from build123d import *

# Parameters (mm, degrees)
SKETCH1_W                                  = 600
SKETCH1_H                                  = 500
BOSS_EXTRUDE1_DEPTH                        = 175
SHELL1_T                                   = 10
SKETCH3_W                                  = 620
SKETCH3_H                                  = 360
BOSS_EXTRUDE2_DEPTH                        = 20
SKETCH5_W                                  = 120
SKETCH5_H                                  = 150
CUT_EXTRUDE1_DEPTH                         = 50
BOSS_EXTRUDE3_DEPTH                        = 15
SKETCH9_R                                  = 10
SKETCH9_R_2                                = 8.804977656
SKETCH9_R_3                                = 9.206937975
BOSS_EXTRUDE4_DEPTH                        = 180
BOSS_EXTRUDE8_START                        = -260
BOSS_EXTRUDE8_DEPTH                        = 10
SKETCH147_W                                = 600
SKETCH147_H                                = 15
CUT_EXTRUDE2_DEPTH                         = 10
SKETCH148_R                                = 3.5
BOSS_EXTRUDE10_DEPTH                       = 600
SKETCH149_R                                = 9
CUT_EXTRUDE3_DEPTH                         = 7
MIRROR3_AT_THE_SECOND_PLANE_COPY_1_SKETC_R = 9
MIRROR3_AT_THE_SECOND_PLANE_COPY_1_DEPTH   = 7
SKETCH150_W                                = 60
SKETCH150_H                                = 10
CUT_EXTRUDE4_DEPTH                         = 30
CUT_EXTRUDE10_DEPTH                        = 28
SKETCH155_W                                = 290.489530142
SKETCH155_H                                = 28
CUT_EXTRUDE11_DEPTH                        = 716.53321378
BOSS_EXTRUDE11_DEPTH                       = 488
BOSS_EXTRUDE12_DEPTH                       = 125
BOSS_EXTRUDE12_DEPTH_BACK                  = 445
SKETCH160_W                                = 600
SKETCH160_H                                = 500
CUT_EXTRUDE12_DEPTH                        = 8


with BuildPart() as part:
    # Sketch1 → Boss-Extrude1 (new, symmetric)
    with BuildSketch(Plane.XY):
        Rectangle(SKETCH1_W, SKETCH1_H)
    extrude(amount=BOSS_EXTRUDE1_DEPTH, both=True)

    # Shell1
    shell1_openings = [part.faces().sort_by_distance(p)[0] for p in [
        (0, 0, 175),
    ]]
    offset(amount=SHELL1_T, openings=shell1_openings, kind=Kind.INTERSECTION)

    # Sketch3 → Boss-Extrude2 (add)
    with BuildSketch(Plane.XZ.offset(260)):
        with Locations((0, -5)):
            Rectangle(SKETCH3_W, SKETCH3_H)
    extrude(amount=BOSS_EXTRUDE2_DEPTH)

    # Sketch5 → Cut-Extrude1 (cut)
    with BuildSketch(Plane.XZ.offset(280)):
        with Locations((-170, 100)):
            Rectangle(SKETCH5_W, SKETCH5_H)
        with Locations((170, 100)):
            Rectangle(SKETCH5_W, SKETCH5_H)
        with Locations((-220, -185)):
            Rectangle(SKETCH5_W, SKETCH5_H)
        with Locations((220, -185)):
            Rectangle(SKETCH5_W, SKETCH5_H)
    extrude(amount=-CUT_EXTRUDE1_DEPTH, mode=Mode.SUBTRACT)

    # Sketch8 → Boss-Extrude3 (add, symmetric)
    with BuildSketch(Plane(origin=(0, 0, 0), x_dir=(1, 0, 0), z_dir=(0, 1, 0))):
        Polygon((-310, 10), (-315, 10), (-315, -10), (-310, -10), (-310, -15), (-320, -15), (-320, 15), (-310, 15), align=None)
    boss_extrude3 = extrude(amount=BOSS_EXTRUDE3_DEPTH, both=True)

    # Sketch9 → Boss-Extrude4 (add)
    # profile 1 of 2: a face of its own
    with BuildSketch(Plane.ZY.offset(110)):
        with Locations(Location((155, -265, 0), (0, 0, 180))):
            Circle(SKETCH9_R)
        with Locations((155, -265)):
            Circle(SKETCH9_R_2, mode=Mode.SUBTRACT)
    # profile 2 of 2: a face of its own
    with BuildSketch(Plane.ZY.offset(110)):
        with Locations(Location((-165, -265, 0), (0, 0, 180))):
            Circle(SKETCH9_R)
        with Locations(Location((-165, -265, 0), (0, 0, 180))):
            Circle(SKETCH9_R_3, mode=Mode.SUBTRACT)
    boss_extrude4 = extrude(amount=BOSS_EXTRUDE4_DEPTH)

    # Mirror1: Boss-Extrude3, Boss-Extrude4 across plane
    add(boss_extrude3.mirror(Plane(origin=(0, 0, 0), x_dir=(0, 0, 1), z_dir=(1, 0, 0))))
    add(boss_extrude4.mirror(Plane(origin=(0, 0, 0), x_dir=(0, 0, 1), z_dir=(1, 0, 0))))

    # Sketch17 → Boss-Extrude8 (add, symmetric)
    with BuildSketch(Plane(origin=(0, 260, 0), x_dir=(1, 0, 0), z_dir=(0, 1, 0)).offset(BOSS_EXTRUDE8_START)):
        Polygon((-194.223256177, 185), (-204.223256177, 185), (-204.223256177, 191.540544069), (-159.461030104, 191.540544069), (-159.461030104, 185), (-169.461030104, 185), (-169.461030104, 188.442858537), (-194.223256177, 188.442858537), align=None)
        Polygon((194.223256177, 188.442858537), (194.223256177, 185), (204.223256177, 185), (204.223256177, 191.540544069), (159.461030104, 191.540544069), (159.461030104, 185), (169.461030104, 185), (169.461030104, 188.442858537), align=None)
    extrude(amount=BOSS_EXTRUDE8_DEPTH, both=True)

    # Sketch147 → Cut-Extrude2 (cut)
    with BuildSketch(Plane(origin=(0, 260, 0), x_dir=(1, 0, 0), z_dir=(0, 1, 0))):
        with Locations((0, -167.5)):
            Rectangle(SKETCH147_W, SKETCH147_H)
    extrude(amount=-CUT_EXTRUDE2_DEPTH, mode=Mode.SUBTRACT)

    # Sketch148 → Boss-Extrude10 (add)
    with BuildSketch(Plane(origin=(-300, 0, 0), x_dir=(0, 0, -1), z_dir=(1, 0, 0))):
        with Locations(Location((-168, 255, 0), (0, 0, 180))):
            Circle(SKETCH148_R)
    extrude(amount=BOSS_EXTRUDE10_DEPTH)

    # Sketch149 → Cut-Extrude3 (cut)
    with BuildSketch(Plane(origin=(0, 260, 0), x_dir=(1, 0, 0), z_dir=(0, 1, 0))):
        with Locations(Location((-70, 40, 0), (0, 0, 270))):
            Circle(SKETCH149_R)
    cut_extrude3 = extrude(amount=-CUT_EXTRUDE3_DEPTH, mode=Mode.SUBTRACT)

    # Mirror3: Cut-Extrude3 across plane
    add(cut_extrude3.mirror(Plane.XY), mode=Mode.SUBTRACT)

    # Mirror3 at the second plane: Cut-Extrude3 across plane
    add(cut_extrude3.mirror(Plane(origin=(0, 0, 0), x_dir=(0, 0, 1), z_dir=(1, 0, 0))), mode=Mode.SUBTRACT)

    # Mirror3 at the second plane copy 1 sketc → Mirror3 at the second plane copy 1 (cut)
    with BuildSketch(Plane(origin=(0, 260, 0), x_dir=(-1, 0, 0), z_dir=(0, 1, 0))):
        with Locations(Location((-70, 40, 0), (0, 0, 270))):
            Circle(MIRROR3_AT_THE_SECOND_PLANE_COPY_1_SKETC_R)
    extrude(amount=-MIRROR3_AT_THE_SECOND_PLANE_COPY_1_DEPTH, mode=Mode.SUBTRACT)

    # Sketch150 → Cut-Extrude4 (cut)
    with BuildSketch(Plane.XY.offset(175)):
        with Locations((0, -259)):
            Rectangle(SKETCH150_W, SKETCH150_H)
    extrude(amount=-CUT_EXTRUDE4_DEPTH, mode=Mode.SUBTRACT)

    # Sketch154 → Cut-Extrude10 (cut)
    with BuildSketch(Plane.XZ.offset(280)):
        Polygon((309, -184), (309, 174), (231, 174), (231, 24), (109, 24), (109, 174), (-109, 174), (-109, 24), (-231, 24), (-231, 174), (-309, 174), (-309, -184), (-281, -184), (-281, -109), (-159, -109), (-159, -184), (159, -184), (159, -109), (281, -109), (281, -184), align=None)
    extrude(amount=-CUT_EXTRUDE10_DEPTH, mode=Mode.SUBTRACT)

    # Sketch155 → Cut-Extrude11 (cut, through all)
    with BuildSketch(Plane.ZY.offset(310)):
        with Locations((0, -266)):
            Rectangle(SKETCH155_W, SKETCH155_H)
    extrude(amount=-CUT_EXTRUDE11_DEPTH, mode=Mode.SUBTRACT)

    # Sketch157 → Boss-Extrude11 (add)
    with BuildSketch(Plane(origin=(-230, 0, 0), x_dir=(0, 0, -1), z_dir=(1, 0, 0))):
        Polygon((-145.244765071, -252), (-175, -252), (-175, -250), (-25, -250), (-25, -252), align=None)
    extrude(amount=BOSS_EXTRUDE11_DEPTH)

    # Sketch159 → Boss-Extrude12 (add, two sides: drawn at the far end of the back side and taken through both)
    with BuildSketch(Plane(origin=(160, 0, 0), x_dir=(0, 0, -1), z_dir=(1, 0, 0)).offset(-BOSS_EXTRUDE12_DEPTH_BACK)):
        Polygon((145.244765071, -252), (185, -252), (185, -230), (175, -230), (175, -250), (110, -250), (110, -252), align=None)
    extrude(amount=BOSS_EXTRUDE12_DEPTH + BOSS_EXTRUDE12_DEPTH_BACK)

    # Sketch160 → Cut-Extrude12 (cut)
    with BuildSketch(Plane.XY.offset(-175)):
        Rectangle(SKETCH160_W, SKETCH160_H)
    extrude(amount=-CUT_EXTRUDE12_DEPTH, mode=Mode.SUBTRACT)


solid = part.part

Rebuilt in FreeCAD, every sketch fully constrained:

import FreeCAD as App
import Part
import Sketcher


def faces_at(feature, points):
    """Names of the faces that lie closest to the given points."""
    faces = feature.Shape.Faces
    near = lambda p: min(range(len(faces)), key=lambda i: faces[i].distToShape(Part.Vertex(*p))[0])
    return sorted({f"Face{near(p) + 1}" for p in points})

doc = App.newDocument("Part")
params = doc.addObject("Spreadsheet::Sheet", "Params")
for row, (alias, value) in enumerate([
    ("sketch1_width", "600 mm"),
    ("sketch1_height", "500 mm"),
    ("pad1_length", "350 mm"),
    ("thickness_wall", "10 mm"),
    ("sketch2_width", "620 mm"),
    ("sketch2_height", "360 mm"),
    ("pad2_length", "20 mm"),
    ("sketch3_width", "120 mm"),
    ("sketch3_height", "150 mm"),
    ("pocket1_length", "50 mm"),
    ("sketch4_width", "5 mm"),
    ("sketch4_width2", "10 mm"),
    ("sketch4_height", "30 mm"),
    ("pad3_length", "30 mm"),
    ("sketch5_diameter", "20 mm"),
    ("pad4_length", "180 mm"),
    ("sketch6_width", "10 mm"),
    ("pad5_length", "20 mm"),
    ("sketch7_width", "600 mm"),
    ("sketch7_height", "15 mm"),
    ("pocket2_length", "10 mm"),
    ("sketch8_diameter", "7 mm"),
    ("pad6_length", "600 mm"),
    ("sketch9_diameter", "18 mm"),
    ("pocket3_length", "7 mm"),
    ("sketch10_diameter", "18 mm"),
    ("pocket4_length", "7 mm"),
    ("sketch11_width", "60 mm"),
    ("sketch11_height", "10 mm"),
    ("pocket5_length", "30 mm"),
    ("sketch12_width", "78 mm"),
    ("sketch12_width2", "122 mm"),
    ("sketch12_width3", "218 mm"),
    ("sketch12_width4", "28 mm"),
    ("sketch12_height", "358 mm"),
    ("pocket6_length", "28 mm"),
    ("sketch13_width", "28 mm"),
    ("sketch14_width", "2 mm"),
    ("sketch14_height", "150 mm"),
    ("pad7_length", "488 mm"),
    ("sketch15_width", "22 mm"),
    ("sketch15_width2", "20 mm"),
    ("sketch15_height", "10 mm"),
    ("sketch15_height2", "65 mm"),
    ("pad8_length", "125 mm"),
    ("pad8_length2", "445 mm"),
    ("sketch16_width", "600 mm"),
    ("sketch16_height", "500 mm"),
    ("pocket8_length", "8 mm"),
], start=1):
    params.set(f"A{row}", alias)
    params.set(f"B{row}", "=" + value)
    params.setAlias(f"B{row}", alias)

body = doc.addObject("PartDesign::Body", "Body")

# Sketch on XY plane
sketch1 = body.newObject("Sketcher::SketchObject", "Sketch")
sketch1.AttachmentSupport = (doc.getObject("XY_Plane"), [""])
sketch1.MapMode = "FlatFace"
sketch1.addGeometry([
    Part.LineSegment(App.Vector(-300, 250, 0), App.Vector(-300, -250, 0)),
    Part.LineSegment(App.Vector(-300, -250, 0), App.Vector(300, -250, 0)),
    Part.LineSegment(App.Vector(300, -250, 0), App.Vector(300, 250, 0)),
    Part.LineSegment(App.Vector(300, 250, 0), App.Vector(-300, 250, 0)),
], False)
sketch1.addConstraint([
    Sketcher.Constraint("Coincident", 0, 2, 1, 1),
    Sketcher.Constraint("Coincident", 1, 2, 2, 1),
    Sketcher.Constraint("Coincident", 2, 2, 3, 1),
    Sketcher.Constraint("Coincident", 3, 2, 0, 1),
    Sketcher.Constraint("Vertical", 0),
    Sketcher.Constraint("Horizontal", 1),
    Sketcher.Constraint("Vertical", 2),
    Sketcher.Constraint("Horizontal", 3),
    Sketcher.Constraint("Symmetric", 0, 2, 2, 2, -1, 1),
    Sketcher.Constraint("DistanceX", 1, 1, 1, 2, 600.0),
    Sketcher.Constraint("DistanceY", 0, 2, 0, 1, 500.0),
])
sketch1.setExpression("Constraints[9]", "Params.sketch1_width")
sketch1.setExpression("Constraints[10]", "Params.sketch1_height")
pad1 = body.newObject("PartDesign::Pad", "Pad")
pad1.Profile = sketch1
pad1.setExpression("Length", "Params.pad1_length")
pad1.Midplane = True
doc.recompute()

thickness = body.newObject("PartDesign::Thickness", "Thickness")
thickness.Base = (pad1, faces_at(pad1, [(0, 0, 175)]))
thickness.setExpression("Value", "Params.thickness_wall")
thickness.Reversed = False
thickness.Join = "Intersection"

# Sketch on XZ plane
sketch2 = body.newObject("Sketcher::SketchObject", "Sketch001")
sketch2.AttachmentSupport = (doc.getObject("XZ_Plane"), [""])
sketch2.MapMode = "FlatFace"
sketch2.AttachmentOffset = App.Placement(App.Vector(0, 0, 260), App.Rotation())
sketch2.addGeometry([
    Part.LineSegment(App.Vector(-310, 175, 0), App.Vector(-310, -185, 0)),
    Part.LineSegment(App.Vector(-310, -185, 0), App.Vector(310, -185, 0)),
    Part.LineSegment(App.Vector(310, -185, 0), App.Vector(310, 175, 0)),
    Part.LineSegment(App.Vector(310, 175, 0), App.Vector(-310, 175, 0)),
], False)
sketch2.addConstraint([
    Sketcher.Constraint("Coincident", 0, 2, 1, 1),
    Sketcher.Constraint("Coincident", 1, 2, 2, 1),
    Sketcher.Constraint("Coincident", 2, 2, 3, 1),
    Sketcher.Constraint("Coincident", 3, 2, 0, 1),
    Sketcher.Constraint("Vertical", 0),
    Sketcher.Constraint("Horizontal", 1),
    Sketcher.Constraint("Vertical", 2),
    Sketcher.Constraint("Horizontal", 3),
    Sketcher.Constraint("DistanceX", 1, 1, 1, 2, 620.0),
    Sketcher.Constraint("DistanceY", 0, 2, 0, 1, 360.0),
    Sketcher.Constraint("DistanceX", 0, 2, -1, 1, 310.0),
    Sketcher.Constraint("DistanceY", 0, 2, -1, 1, 185.0),
])
sketch2.setExpression("Constraints[8]", "Params.sketch2_width")
sketch2.setExpression("Constraints[9]", "Params.sketch2_height")
pad2 = body.newObject("PartDesign::Pad", "Pad001")
pad2.Profile = sketch2
pad2.setExpression("Length", "Params.pad2_length")

# Sketch on XZ plane
sketch3 = body.newObject("Sketcher::SketchObject", "Sketch002")
sketch3.AttachmentSupport = (doc.getObject("XZ_Plane"), [""])
sketch3.MapMode = "FlatFace"
sketch3.AttachmentOffset = App.Placement(App.Vector(0, 0, 280), App.Rotation())
sketch3.addGeometry([
    Part.LineSegment(App.Vector(-230, 175, 0), App.Vector(-230, 25, 0)),  # 0
    Part.LineSegment(App.Vector(-230, 25, 0), App.Vector(-110, 25, 0)),  # 1
    Part.LineSegment(App.Vector(-110, 25, 0), App.Vector(-110, 175, 0)),  # 2
    Part.LineSegment(App.Vector(-110, 175, 0), App.Vector(-230, 175, 0)),  # 3
    Part.LineSegment(App.Vector(110, 175, 0), App.Vector(110, 25, 0)),  # 4
    Part.LineSegment(App.Vector(110, 25, 0), App.Vector(230, 25, 0)),  # 5
    Part.LineSegment(App.Vector(230, 25, 0), App.Vector(230, 175, 0)),  # 6
    Part.LineSegment(App.Vector(230, 175, 0), App.Vector(110, 175, 0)),  # 7
    Part.LineSegment(App.Vector(-280, -110, 0), App.Vector(-280, -260, 0)),  # 8
    Part.LineSegment(App.Vector(-280, -260, 0), App.Vector(-160, -260, 0)),  # 9
    Part.LineSegment(App.Vector(-160, -260, 0), App.Vector(-160, -110, 0)),  # 10
    Part.LineSegment(App.Vector(-160, -110, 0), App.Vector(-280, -110, 0)),  # 11
    Part.LineSegment(App.Vector(160, -110, 0), App.Vector(160, -260, 0)),  # 12
    Part.LineSegment(App.Vector(160, -260, 0), App.Vector(280, -260, 0)),  # 13
    Part.LineSegment(App.Vector(280, -260, 0), App.Vector(280, -110, 0)),  # 14
    Part.LineSegment(App.Vector(280, -110, 0), App.Vector(160, -110, 0)),  # 15
], False)
sketch3.addConstraint([
    Sketcher.Constraint("Coincident", 0, 2, 1, 1),
    Sketcher.Constraint("Coincident", 1, 2, 2, 1),
    Sketcher.Constraint("Coincident", 2, 2, 3, 1),
    Sketcher.Constraint("Coincident", 3, 2, 0, 1),
    Sketcher.Constraint("Coincident", 4, 2, 5, 1),
    Sketcher.Constraint("Coincident", 5, 2, 6, 1),
    Sketcher.Constraint("Coincident", 6, 2, 7, 1),
    Sketcher.Constraint("Coincident", 7, 2, 4, 1),
    Sketcher.Constraint("Coincident", 8, 2, 9, 1),
    Sketcher.Constraint("Coincident", 9, 2, 10, 1),
    Sketcher.Constraint("Coincident", 10, 2, 11, 1),
    Sketcher.Constraint("Coincident", 11, 2, 8, 1),
    Sketcher.Constraint("Coincident", 12, 2, 13, 1),
    Sketcher.Constraint("Coincident", 13, 2, 14, 1),
    Sketcher.Constraint("Coincident", 14, 2, 15, 1),
    Sketcher.Constraint("Coincident", 15, 2, 12, 1),
    Sketcher.Constraint("Vertical", 0),
    Sketcher.Constraint("Horizontal", 1),
    Sketcher.Constraint("Vertical", 2),
    Sketcher.Constraint("Horizontal", 3),
    Sketcher.Constraint("Vertical", 4),
    Sketcher.Constraint("Horizontal", 5),
    Sketcher.Constraint("Vertical", 6),
    Sketcher.Constraint("Horizontal", 7),
    Sketcher.Constraint("Vertical", 8),
    Sketcher.Constraint("Horizontal", 9),
    Sketcher.Constraint("Vertical", 10),
    Sketcher.Constraint("Horizontal", 11),
    Sketcher.Constraint("Vertical", 12),
    Sketcher.Constraint("Horizontal", 13),
    Sketcher.Constraint("Vertical", 14),
    Sketcher.Constraint("Horizontal", 15),
    Sketcher.Constraint("Symmetric", 1, 2, 4, 2, -2),
    Sketcher.Constraint("Symmetric", 3, 2, 6, 2, -2),
    Sketcher.Constraint("Symmetric", 9, 2, 12, 2, -2),
    Sketcher.Constraint("Symmetric", 11, 2, 14, 2, -2),
    Sketcher.Constraint("Equal", 7, 9),
    Sketcher.Constraint("Equal", 6, 8),
    Sketcher.Constraint("DistanceX", 1, 1, 1, 2, 120.0),
    Sketcher.Constraint("DistanceY", 0, 2, 0, 1, 150.0),
    Sketcher.Constraint("DistanceX", 0, 2, -1, 1, 230.0),
    Sketcher.Constraint("DistanceY", -1, 1, 0, 2, 25.0),
    Sketcher.Constraint("DistanceX", 8, 2, -1, 1, 280.0),
    Sketcher.Constraint("DistanceY", 8, 2, -1, 1, 260.0),
])
sketch3.setExpression("Constraints[38]", "Params.sketch3_width")
sketch3.setExpression("Constraints[39]", "Params.sketch3_height")
pocket1 = body.newObject("PartDesign::Pocket", "Pocket")
pocket1.Profile = sketch3
pocket1.setExpression("Length", "Params.pocket1_length")

# Sketch on XZ plane
sketch4 = body.newObject("Sketcher::SketchObject", "Sketch003")
sketch4.AttachmentSupport = (doc.getObject("XZ_Plane"), [""])
sketch4.MapMode = "FlatFace"
sketch4.addGeometry([
    Part.LineSegment(App.Vector(-315, -10, 0), App.Vector(-310, -10, 0)),  # 0
    Part.LineSegment(App.Vector(-310, -10, 0), App.Vector(-310, -15, 0)),  # 1
    Part.LineSegment(App.Vector(-310, -15, 0), App.Vector(-320, -15, 0)),  # 2
    Part.LineSegment(App.Vector(-320, -15, 0), App.Vector(-320, 15, 0)),  # 3
    Part.LineSegment(App.Vector(-320, 15, 0), App.Vector(-310, 15, 0)),  # 4
    Part.LineSegment(App.Vector(-310, 15, 0), App.Vector(-310, 10, 0)),  # 5
    Part.LineSegment(App.Vector(-310, 10, 0), App.Vector(-315, 10, 0)),  # 6
    Part.LineSegment(App.Vector(-315, 10, 0), App.Vector(-315, -10, 0)),  # 7
], False)
sketch4.addConstraint([
    Sketcher.Constraint("Coincident", 0, 2, 1, 1),
    Sketcher.Constraint("Coincident", 1, 2, 2, 1),
    Sketcher.Constraint("Coincident", 2, 2, 3, 1),
    Sketcher.Constraint("Coincident", 3, 2, 4, 1),
    Sketcher.Constraint("Coincident", 4, 2, 5, 1),
    Sketcher.Constraint("Coincident", 5, 2, 6, 1),
    Sketcher.Constraint("Coincident", 6, 2, 7, 1),
    Sketcher.Constraint("Coincident", 7, 2, 0, 1),
    Sketcher.Constraint("Horizontal", 0),
    Sketcher.Constraint("Vertical", 1),
    Sketcher.Constraint("Horizontal", 2),
    Sketcher.Constraint("Vertical", 3),
    Sketcher.Constraint("Horizontal", 4),
    Sketcher.Constraint("Vertical", 5),
    Sketcher.Constraint("Horizontal", 6),
    Sketcher.Constraint("Vertical", 7),
    Sketcher.Constraint("Symmetric", 1, 2, 4, 2, -1),
    Sketcher.Constraint("Equal", 6, 1),
    Sketcher.Constraint("Equal", 1, 5),
    Sketcher.Constraint("DistanceX", 0, 1, 0, 2, 5.0),
    Sketcher.Constraint("DistanceX", 2, 2, 2, 1, 10.0),
    Sketcher.Constraint("DistanceY", 3, 1, 3, 2, 30.0),
    Sketcher.Constraint("DistanceX", 0, 2, -1, 1, 310.0),
])
sketch4.setExpression("Constraints[19]", "Params.sketch4_width")
sketch4.setExpression("Constraints[20]", "Params.sketch4_width2")
sketch4.setExpression("Constraints[21]", "Params.sketch4_height")
pad3 = body.newObject("PartDesign::Pad", "Pad002")
pad3.Profile = sketch4
pad3.setExpression("Length", "Params.pad3_length")
pad3.Midplane = True

# Sketch on YZ plane
sketch5 = body.newObject("Sketcher::SketchObject", "Sketch004")
sketch5.AttachmentSupport = (doc.getObject("YZ_Plane"), [""])
sketch5.MapMode = "FlatFace"
sketch5.AttachmentOffset = App.Placement(App.Vector(0, 0, -110), App.Rotation())
sketch5.addGeometry([
    Part.Circle(App.Vector(-265, 155, 0), App.Vector(0, 0, 1), 10),
    Part.Circle(App.Vector(-265, 155, 0), App.Vector(0, 0, 1), 9),
    Part.Circle(App.Vector(-265, -165, 0), App.Vector(0, 0, 1), 10),
    Part.Circle(App.Vector(-265, -165, 0), App.Vector(0, 0, 1), 9),
], False)
sketch5.addConstraint([
    Sketcher.Constraint("Coincident", 1, 3, 0, 3),
    Sketcher.Constraint("Coincident", 3, 3, 2, 3),
    Sketcher.Constraint("Equal", 0, 2),
    Sketcher.Constraint("Vertical", 1, 3, 2, 3),
    Sketcher.Constraint("Diameter", 0, 20.0),
    Sketcher.Constraint("DistanceX", 0, 3, -1, 1, 265.0),
    Sketcher.Constraint("DistanceY", -1, 1, 0, 3, 155.0),
    Sketcher.Constraint("DistanceY", 2, 3, -1, 1, 165.0),
    Sketcher.Constraint("Diameter", 1, 17.609955),
    Sketcher.Constraint("Diameter", 3, 18.413876),
])
sketch5.setExpression("Constraints[4]", "Params.sketch5_diameter")
pad4 = body.newObject("PartDesign::Pad", "Pad003")
pad4.Profile = sketch5
pad4.setExpression("Length", "Params.pad4_length")
pad4.Reversed = True
doc.recompute()

mirrored = body.newObject("PartDesign::Mirrored", "Mirrored")
mirrored.Originals = [pad3, pad4]
mirrored.MirrorPlane = (doc.getObject("YZ_Plane"), [""])
body.Tip = mirrored

# Sketch on XZ plane
sketch6 = body.newObject("Sketcher::SketchObject", "Sketch005")
sketch6.AttachmentSupport = (doc.getObject("XZ_Plane"), [""])
sketch6.MapMode = "FlatFace"
sketch6.addGeometry([
    Part.LineSegment(App.Vector(-204.2, -185, 0), App.Vector(-194.2, -185, 0)),  # 0
    Part.LineSegment(App.Vector(-194.2, -185, 0), App.Vector(-194.2, -188.4, 0)),  # 1
    Part.LineSegment(App.Vector(-194.2, -188.4, 0), App.Vector(-169.5, -188.4, 0)),  # 2
    Part.LineSegment(App.Vector(-169.5, -188.4, 0), App.Vector(-169.5, -185, 0)),  # 3
    Part.LineSegment(App.Vector(-169.5, -185, 0), App.Vector(-159.5, -185, 0)),  # 4
    Part.LineSegment(App.Vector(-159.5, -185, 0), App.Vector(-159.5, -191.5, 0)),  # 5
    Part.LineSegment(App.Vector(-159.5, -191.5, 0), App.Vector(-204.2, -191.5, 0)),  # 6
    Part.LineSegment(App.Vector(-204.2, -191.5, 0), App.Vector(-204.2, -185, 0)),  # 7
    Part.LineSegment(App.Vector(194.2, -188.4, 0), App.Vector(194.2, -185, 0)),  # 8
    Part.LineSegment(App.Vector(194.2, -185, 0), App.Vector(204.2, -185, 0)),  # 9
    Part.LineSegment(App.Vector(204.2, -185, 0), App.Vector(204.2, -191.5, 0)),  # 10
    Part.LineSegment(App.Vector(204.2, -191.5, 0), App.Vector(159.5, -191.5, 0)),  # 11
    Part.LineSegment(App.Vector(159.5, -191.5, 0), App.Vector(159.5, -185, 0)),  # 12
    Part.LineSegment(App.Vector(159.5, -185, 0), App.Vector(169.5, -185, 0)),  # 13
    Part.LineSegment(App.Vector(169.5, -185, 0), App.Vector(169.5, -188.4, 0)),  # 14
    Part.LineSegment(App.Vector(169.5, -188.4, 0), App.Vector(194.2, -188.4, 0)),  # 15
], False)
sketch6.addConstraint([
    Sketcher.Constraint("Coincident", 0, 2, 1, 1),
    Sketcher.Constraint("Coincident", 1, 2, 2, 1),
    Sketcher.Constraint("Coincident", 2, 2, 3, 1),
    Sketcher.Constraint("Coincident", 3, 2, 4, 1),
    Sketcher.Constraint("Coincident", 4, 2, 5, 1),
    Sketcher.Constraint("Coincident", 5, 2, 6, 1),
    Sketcher.Constraint("Coincident", 6, 2, 7, 1),
    Sketcher.Constraint("Coincident", 7, 2, 0, 1),
    Sketcher.Constraint("Coincident", 8, 2, 9, 1),
    Sketcher.Constraint("Coincident", 9, 2, 10, 1),
    Sketcher.Constraint("Coincident", 10, 2, 11, 1),
    Sketcher.Constraint("Coincident", 11, 2, 12, 1),
    Sketcher.Constraint("Coincident", 12, 2, 13, 1),
    Sketcher.Constraint("Coincident", 13, 2, 14, 1),
    Sketcher.Constraint("Coincident", 14, 2, 15, 1),
    Sketcher.Constraint("Coincident", 15, 2, 8, 1),
    Sketcher.Constraint("Horizontal", 0),
    Sketcher.Constraint("Vertical", 1),
    Sketcher.Constraint("Horizontal", 2),
    Sketcher.Constraint("Vertical", 3),
    Sketcher.Constraint("Horizontal", 4),
    Sketcher.Constraint("Vertical", 5),
    Sketcher.Constraint("Horizontal", 6),
    Sketcher.Constraint("Vertical", 7),
    Sketcher.Constraint("Vertical", 8),
    Sketcher.Constraint("Horizontal", 9),
    Sketcher.Constraint("Vertical", 10),
    Sketcher.Constraint("Horizontal", 11),
    Sketcher.Constraint("Vertical", 12),
    Sketcher.Constraint("Horizontal", 13),
    Sketcher.Constraint("Vertical", 14),
    Sketcher.Constraint("Horizontal", 15),
    Sketcher.Constraint("Symmetric", 0, 2, 8, 2, -2),
    Sketcher.Constraint("Symmetric", 6, 2, 10, 2, -2),
    Sketcher.Constraint("Symmetric", 4, 2, 12, 2, -2),
    Sketcher.Constraint("Symmetric", 2, 2, 14, 2, -2),
    Sketcher.Constraint("Horizontal", 0, 2, 3, 2),
    Sketcher.Constraint("Equal", 0, 4),
    Sketcher.Constraint("DistanceX", 0, 1, 0, 2, 10.0),
    Sketcher.Constraint("DistanceY", 0, 2, -1, 1, 185.0),
    Sketcher.Constraint("DistanceY", 1, 2, 1, 1, 3.442859),
    Sketcher.Constraint("DistanceX", 2, 1, 2, 2, 24.762226),
    Sketcher.Constraint("DistanceY", 5, 2, 5, 1, 6.540544),
    Sketcher.Constraint("DistanceX", 2, 2, -1, 1, 169.46103),
])
sketch6.setExpression("Constraints[38]", "Params.sketch6_width")
pad5 = body.newObject("PartDesign::Pad", "Pad004")
pad5.Profile = sketch6
pad5.setExpression("Length", "Params.pad5_length")
pad5.Midplane = True

# Sketch on XZ plane
sketch7 = body.newObject("Sketcher::SketchObject", "Sketch006")
sketch7.AttachmentSupport = (doc.getObject("XZ_Plane"), [""])
sketch7.MapMode = "FlatFace"
sketch7.AttachmentOffset = App.Placement(App.Vector(0, 0, -260), App.Rotation())
sketch7.addGeometry([
    Part.LineSegment(App.Vector(-300, 160, 0), App.Vector(-300, 175, 0)),
    Part.LineSegment(App.Vector(-300, 175, 0), App.Vector(300, 175, 0)),
    Part.LineSegment(App.Vector(300, 175, 0), App.Vector(300, 160, 0)),
    Part.LineSegment(App.Vector(300, 160, 0), App.Vector(-300, 160, 0)),
], False)
sketch7.addConstraint([
    Sketcher.Constraint("Coincident", 0, 2, 1, 1),
    Sketcher.Constraint("Coincident", 1, 2, 2, 1),
    Sketcher.Constraint("Coincident", 2, 2, 3, 1),
    Sketcher.Constraint("Coincident", 3, 2, 0, 1),
    Sketcher.Constraint("Vertical", 0),
    Sketcher.Constraint("Horizontal", 1),
    Sketcher.Constraint("Vertical", 2),
    Sketcher.Constraint("Horizontal", 3),
    Sketcher.Constraint("DistanceX", 1, 1, 1, 2, 600.0),
    Sketcher.Constraint("DistanceY", 0, 1, 0, 2, 15.0),
    Sketcher.Constraint("DistanceX", 0, 2, -1, 1, 300.0),
    Sketcher.Constraint("DistanceY", -1, 1, 0, 2, 175.0),
])
sketch7.setExpression("Constraints[8]", "Params.sketch7_width")
sketch7.setExpression("Constraints[9]", "Params.sketch7_height")
pocket2 = body.newObject("PartDesign::Pocket", "Pocket001")
pocket2.Profile = sketch7
pocket2.setExpression("Length", "Params.pocket2_length")
pocket2.Reversed = True

# Sketch on YZ plane
sketch8 = body.newObject("Sketcher::SketchObject", "Sketch007")
sketch8.AttachmentSupport = (doc.getObject("YZ_Plane"), [""])
sketch8.MapMode = "FlatFace"
sketch8.AttachmentOffset = App.Placement(App.Vector(0, 0, -300), App.Rotation())
sketch8.addGeometry(Part.Circle(App.Vector(255, 168, 0), App.Vector(0, 0, 1), 3.5), False)
sketch8.addConstraint([
    Sketcher.Constraint("Diameter", 0, 7.0),
    Sketcher.Constraint("DistanceX", -1, 1, 0, 3, 255.0),
    Sketcher.Constraint("DistanceY", -1, 1, 0, 3, 168.0),
])
sketch8.setExpression("Constraints[0]", "Params.sketch8_diameter")
pad6 = body.newObject("PartDesign::Pad", "Pad005")
pad6.Profile = sketch8
pad6.setExpression("Length", "Params.pad6_length")

# Sketch on XZ plane
sketch9 = body.newObject("Sketcher::SketchObject", "Sketch008")
sketch9.AttachmentSupport = (doc.getObject("XZ_Plane"), [""])
sketch9.MapMode = "FlatFace"
sketch9.AttachmentOffset = App.Placement(App.Vector(0, 0, -260), App.Rotation())
sketch9.addGeometry(Part.Circle(App.Vector(-70, -40, 0), App.Vector(0, 0, 1), 9), False)
sketch9.addConstraint([
    Sketcher.Constraint("Diameter", 0, 18.0),
    Sketcher.Constraint("DistanceX", 0, 3, -1, 1, 70.0),
    Sketcher.Constraint("DistanceY", 0, 3, -1, 1, 40.0),
])
sketch9.setExpression("Constraints[0]", "Params.sketch9_diameter")
pocket3 = body.newObject("PartDesign::Pocket", "Pocket002")
pocket3.Profile = sketch9
pocket3.setExpression("Length", "Params.pocket3_length")
pocket3.Reversed = True
doc.recompute()

mirrored2 = body.newObject("PartDesign::Mirrored", "Mirrored001")
mirrored2.Originals = [pocket3]
mirrored2.MirrorPlane = (doc.getObject("XY_Plane"), [""])
body.Tip = mirrored2
doc.recompute()

mirrored3 = body.newObject("PartDesign::Mirrored", "Mirrored002")
mirrored3.Originals = [pocket3]
mirrored3.MirrorPlane = (doc.getObject("YZ_Plane"), [""])
body.Tip = mirrored3

# Sketch on XZ plane
sketch10 = body.newObject("Sketcher::SketchObject", "Sketch009")
sketch10.AttachmentSupport = (doc.getObject("XZ_Plane"), [""])
sketch10.MapMode = "FlatFace"
sketch10.AttachmentOffset = App.Placement(App.Vector(0, 0, -260), App.Rotation())
sketch10.addGeometry(Part.Circle(App.Vector(70, 40, 0), App.Vector(0, 0, 1), 9), False)
sketch10.addConstraint([
    Sketcher.Constraint("Diameter", 0, 18.0),
    Sketcher.Constraint("DistanceX", -1, 1, 0, 3, 70.0),
    Sketcher.Constraint("DistanceY", -1, 1, 0, 3, 40.0),
])
sketch10.setExpression("Constraints[0]", "Params.sketch10_diameter")
pocket4 = body.newObject("PartDesign::Pocket", "Pocket003")
pocket4.Profile = sketch10
pocket4.setExpression("Length", "Params.pocket4_length")
pocket4.Reversed = True

# Sketch on XY plane
sketch11 = body.newObject("Sketcher::SketchObject", "Sketch010")
sketch11.AttachmentSupport = (doc.getObject("XY_Plane"), [""])
sketch11.MapMode = "FlatFace"
sketch11.AttachmentOffset = App.Placement(App.Vector(0, 0, 175), App.Rotation())
sketch11.addGeometry([
    Part.LineSegment(App.Vector(-30, -254, 0), App.Vector(-30, -264, 0)),
    Part.LineSegment(App.Vector(-30, -264, 0), App.Vector(30, -264, 0)),
    Part.LineSegment(App.Vector(30, -264, 0), App.Vector(30, -254, 0)),
    Part.LineSegment(App.Vector(30, -254, 0), App.Vector(-30, -254, 0)),
], False)
sketch11.addConstraint([
    Sketcher.Constraint("Coincident", 0, 2, 1, 1),
    Sketcher.Constraint("Coincident", 1, 2, 2, 1),
    Sketcher.Constraint("Coincident", 2, 2, 3, 1),
    Sketcher.Constraint("Coincident", 3, 2, 0, 1),
    Sketcher.Constraint("Vertical", 0),
    Sketcher.Constraint("Horizontal", 1),
    Sketcher.Constraint("Vertical", 2),
    Sketcher.Constraint("Horizontal", 3),
    Sketcher.Constraint("DistanceX", 1, 1, 1, 2, 60.0),
    Sketcher.Constraint("DistanceY", 0, 2, 0, 1, 10.0),
    Sketcher.Constraint("DistanceX", 0, 2, -1, 1, 30.0),
    Sketcher.Constraint("DistanceY", 0, 2, -1, 1, 264.0),
])
sketch11.setExpression("Constraints[8]", "Params.sketch11_width")
sketch11.setExpression("Constraints[9]", "Params.sketch11_height")
pocket5 = body.newObject("PartDesign::Pocket", "Pocket004")
pocket5.Profile = sketch11
pocket5.setExpression("Length", "Params.pocket5_length")

# Sketch on XZ plane
sketch12 = body.newObject("Sketcher::SketchObject", "Sketch011")
sketch12.AttachmentSupport = (doc.getObject("XZ_Plane"), [""])
sketch12.MapMode = "FlatFace"
sketch12.AttachmentOffset = App.Placement(App.Vector(0, 0, 280), App.Rotation())
sketch12.addGeometry([
    Part.LineSegment(App.Vector(309, -184, 0), App.Vector(309, 174, 0)),  # 0
    Part.LineSegment(App.Vector(309, 174, 0), App.Vector(231, 174, 0)),  # 1
    Part.LineSegment(App.Vector(231, 174, 0), App.Vector(231, 24, 0)),  # 2
    Part.LineSegment(App.Vector(231, 24, 0), App.Vector(109, 24, 0)),  # 3
    Part.LineSegment(App.Vector(109, 24, 0), App.Vector(109, 174, 0)),  # 4
    Part.LineSegment(App.Vector(109, 174, 0), App.Vector(-109, 174, 0)),  # 5
    Part.LineSegment(App.Vector(-109, 174, 0), App.Vector(-109, 24, 0)),  # 6
    Part.LineSegment(App.Vector(-109, 24, 0), App.Vector(-231, 24, 0)),  # 7
    Part.LineSegment(App.Vector(-231, 24, 0), App.Vector(-231, 174, 0)),  # 8
    Part.LineSegment(App.Vector(-231, 174, 0), App.Vector(-309, 174, 0)),  # 9
    Part.LineSegment(App.Vector(-309, 174, 0), App.Vector(-309, -184, 0)),  # 10
    Part.LineSegment(App.Vector(-309, -184, 0), App.Vector(-281, -184, 0)),  # 11
    Part.LineSegment(App.Vector(-281, -184, 0), App.Vector(-281, -109, 0)),  # 12
    Part.LineSegment(App.Vector(-281, -109, 0), App.Vector(-159, -109, 0)),  # 13
    Part.LineSegment(App.Vector(-159, -109, 0), App.Vector(-159, -184, 0)),  # 14
    Part.LineSegment(App.Vector(-159, -184, 0), App.Vector(159, -184, 0)),  # 15
    Part.LineSegment(App.Vector(159, -184, 0), App.Vector(159, -109, 0)),  # 16
    Part.LineSegment(App.Vector(159, -109, 0), App.Vector(281, -109, 0)),  # 17
    Part.LineSegment(App.Vector(281, -109, 0), App.Vector(281, -184, 0)),  # 18
    Part.LineSegment(App.Vector(281, -184, 0), App.Vector(309, -184, 0)),  # 19
], False)
sketch12.addConstraint([
    Sketcher.Constraint("Coincident", 0, 2, 1, 1),
    Sketcher.Constraint("Coincident", 1, 2, 2, 1),
    Sketcher.Constraint("Coincident", 2, 2, 3, 1),
    Sketcher.Constraint("Coincident", 3, 2, 4, 1),
    Sketcher.Constraint("Coincident", 4, 2, 5, 1),
    Sketcher.Constraint("Coincident", 5, 2, 6, 1),
    Sketcher.Constraint("Coincident", 6, 2, 7, 1),
    Sketcher.Constraint("Coincident", 7, 2, 8, 1),
    Sketcher.Constraint("Coincident", 8, 2, 9, 1),
    Sketcher.Constraint("Coincident", 9, 2, 10, 1),
    Sketcher.Constraint("Coincident", 10, 2, 11, 1),
    Sketcher.Constraint("Coincident", 11, 2, 12, 1),
    Sketcher.Constraint("Coincident", 12, 2, 13, 1),
    Sketcher.Constraint("Coincident", 13, 2, 14, 1),
    Sketcher.Constraint("Coincident", 14, 2, 15, 1),
    Sketcher.Constraint("Coincident", 15, 2, 16, 1),
    Sketcher.Constraint("Coincident", 16, 2, 17, 1),
    Sketcher.Constraint("Coincident", 17, 2, 18, 1),
    Sketcher.Constraint("Coincident", 18, 2, 19, 1),
    Sketcher.Constraint("Coincident", 19, 2, 0, 1),
    Sketcher.Constraint("Vertical", 0),
    Sketcher.Constraint("Horizontal", 1),
    Sketcher.Constraint("Vertical", 2),
    Sketcher.Constraint("Horizontal", 3),
    Sketcher.Constraint("Vertical", 4),
    Sketcher.Constraint("Horizontal", 5),
    Sketcher.Constraint("Vertical", 6),
    Sketcher.Constraint("Horizontal", 7),
    Sketcher.Constraint("Vertical", 8),
    Sketcher.Constraint("Horizontal", 9),
    Sketcher.Constraint("Vertical", 10),
    Sketcher.Constraint("Horizontal", 11),
    Sketcher.Constraint("Vertical", 12),
    Sketcher.Constraint("Horizontal", 13),
    Sketcher.Constraint("Vertical", 14),
    Sketcher.Constraint("Horizontal", 15),
    Sketcher.Constraint("Vertical", 16),
    Sketcher.Constraint("Horizontal", 17),
    Sketcher.Constraint("Vertical", 18),
    Sketcher.Constraint("Horizontal", 19),
    Sketcher.Constraint("Symmetric", 3, 2, 6, 2, -2),
    Sketcher.Constraint("Symmetric", 1, 2, 8, 2, -2),
    Sketcher.Constraint("Symmetric", 13, 2, 16, 2, -2),
    Sketcher.Constraint("Symmetric", 11, 2, 18, 2, -2),
    Sketcher.Constraint("Horizontal", 1, 2, 4, 2),
    Sketcher.Constraint("Horizontal", 11, 2, 14, 2),
    Sketcher.Constraint("Equal", 1, 9),
    Sketcher.Constraint("Equal", 7, 13),
    Sketcher.Constraint("DistanceX", 1, 2, 1, 1, 78.0),
    Sketcher.Constraint("DistanceX", 3, 2, 3, 1, 122.0),
    Sketcher.Constraint("DistanceX", 5, 2, 5, 1, 218.0),
    Sketcher.Constraint("DistanceX", 11, 1, 11, 2, 28.0),
    Sketcher.Constraint("DistanceY", 0, 1, 0, 2, 358.0),
    Sketcher.Constraint("DistanceY", 2, 2, 2, 1, 150.0),
    Sketcher.Constraint("DistanceY", 12, 1, 12, 2, 75.0),
    Sketcher.Constraint("DistanceY", -1, 1, 0, 2, 174.0),
])
sketch12.setExpression("Constraints[48]", "Params.sketch12_width")
sketch12.setExpression("Constraints[49]", "Params.sketch12_width2")
sketch12.setExpression("Constraints[50]", "Params.sketch12_width3")
sketch12.setExpression("Constraints[51]", "Params.sketch12_width4")
sketch12.setExpression("Constraints[52]", "Params.sketch12_height")
pocket6 = body.newObject("PartDesign::Pocket", "Pocket005")
pocket6.Profile = sketch12
pocket6.setExpression("Length", "Params.pocket6_length")

# Sketch on YZ plane
sketch13 = body.newObject("Sketcher::SketchObject", "Sketch012")
sketch13.AttachmentSupport = (doc.getObject("YZ_Plane"), [""])
sketch13.MapMode = "FlatFace"
sketch13.AttachmentOffset = App.Placement(App.Vector(0, 0, -310), App.Rotation())
sketch13.addGeometry([
    Part.LineSegment(App.Vector(-252, -145, 0), App.Vector(-280, -145, 0)),
    Part.LineSegment(App.Vector(-280, -145, 0), App.Vector(-280, 145, 0)),
    Part.LineSegment(App.Vector(-280, 145, 0), App.Vector(-252, 145, 0)),
    Part.LineSegment(App.Vector(-252, 145, 0), App.Vector(-252, -145, 0)),
], False)
sketch13.addConstraint([
    Sketcher.Constraint("Coincident", 0, 2, 1, 1),
    Sketcher.Constraint("Coincident", 1, 2, 2, 1),
    Sketcher.Constraint("Coincident", 2, 2, 3, 1),
    Sketcher.Constraint("Coincident", 3, 2, 0, 1),
    Sketcher.Constraint("Horizontal", 0),
    Sketcher.Constraint("Vertical", 1),
    Sketcher.Constraint("Horizontal", 2),
    Sketcher.Constraint("Vertical", 3),
    Sketcher.Constraint("DistanceX", 0, 2, 0, 1, 28.0),
    Sketcher.Constraint("DistanceX", 0, 2, -1, 1, 280.0),
    Sketcher.Constraint("DistanceY", 1, 1, 1, 2, 290.48953),
    Sketcher.Constraint("DistanceY", 0, 2, -1, 1, 145.244765),
])
sketch13.setExpression("Constraints[8]", "Params.sketch13_width")
pocket7 = body.newObject("PartDesign::Pocket", "Pocket006")
pocket7.Profile = sketch13
pocket7.Type = "ThroughAll"
pocket7.Reversed = True

# Sketch on YZ plane
sketch14 = body.newObject("Sketcher::SketchObject", "Sketch013")
sketch14.AttachmentSupport = (doc.getObject("YZ_Plane"), [""])
sketch14.MapMode = "FlatFace"
sketch14.AttachmentOffset = App.Placement(App.Vector(0, 0, -230), App.Rotation())
sketch14.addGeometry([
    Part.LineSegment(App.Vector(-252, 175, 0), App.Vector(-252, 25, 0)),
    Part.LineSegment(App.Vector(-252, 25, 0), App.Vector(-250, 25, 0)),
    Part.LineSegment(App.Vector(-250, 25, 0), App.Vector(-250, 175, 0)),
    Part.LineSegment(App.Vector(-250, 175, 0), App.Vector(-252, 175, 0)),
], False)
sketch14.addConstraint([
    Sketcher.Constraint("Coincident", 0, 2, 1, 1),
    Sketcher.Constraint("Coincident", 1, 2, 2, 1),
    Sketcher.Constraint("Coincident", 2, 2, 3, 1),
    Sketcher.Constraint("Coincident", 3, 2, 0, 1),
    Sketcher.Constraint("Vertical", 0),
    Sketcher.Constraint("Horizontal", 1),
    Sketcher.Constraint("Vertical", 2),
    Sketcher.Constraint("Horizontal", 3),
    Sketcher.Constraint("DistanceX", 1, 1, 1, 2, 2.0),
    Sketcher.Constraint("DistanceY", 0, 2, 0, 1, 150.0),
    Sketcher.Constraint("DistanceX", 0, 2, -1, 1, 252.0),
    Sketcher.Constraint("DistanceY", -1, 1, 0, 2, 25.0),
])
sketch14.setExpression("Constraints[8]", "Params.sketch14_width")
sketch14.setExpression("Constraints[9]", "Params.sketch14_height")
pad7 = body.newObject("PartDesign::Pad", "Pad006")
pad7.Profile = sketch14
pad7.setExpression("Length", "Params.pad7_length")

# Sketch on YZ plane
sketch15 = body.newObject("Sketcher::SketchObject", "Sketch014")
sketch15.AttachmentSupport = (doc.getObject("YZ_Plane"), [""])
sketch15.MapMode = "FlatFace"
sketch15.AttachmentOffset = App.Placement(App.Vector(0, 0, 160), App.Rotation())
sketch15.addGeometry([
    Part.LineSegment(App.Vector(-252, -185, 0), App.Vector(-230, -185, 0)),  # 0
    Part.LineSegment(App.Vector(-230, -185, 0), App.Vector(-230, -175, 0)),  # 1
    Part.LineSegment(App.Vector(-230, -175, 0), App.Vector(-250, -175, 0)),  # 2
    Part.LineSegment(App.Vector(-250, -175, 0), App.Vector(-250, -110, 0)),  # 3
    Part.LineSegment(App.Vector(-250, -110, 0), App.Vector(-252, -110, 0)),  # 4
    Part.LineSegment(App.Vector(-252, -110, 0), App.Vector(-252, -185, 0)),  # 5
], False)
sketch15.addConstraint([
    Sketcher.Constraint("Coincident", 0, 2, 1, 1),
    Sketcher.Constraint("Coincident", 1, 2, 2, 1),
    Sketcher.Constraint("Coincident", 2, 2, 3, 1),
    Sketcher.Constraint("Coincident", 3, 2, 4, 1),
    Sketcher.Constraint("Coincident", 4, 2, 5, 1),
    Sketcher.Constraint("Coincident", 5, 2, 0, 1),
    Sketcher.Constraint("Horizontal", 0),
    Sketcher.Constraint("Vertical", 1),
    Sketcher.Constraint("Horizontal", 2),
    Sketcher.Constraint("Vertical", 3),
    Sketcher.Constraint("Horizontal", 4),
    Sketcher.Constraint("Vertical", 5),
    Sketcher.Constraint("DistanceX", 0, 1, 0, 2, 22.0),
    Sketcher.Constraint("DistanceX", 2, 2, 2, 1, 20.0),
    Sketcher.Constraint("DistanceY", 1, 1, 1, 2, 10.0),
    Sketcher.Constraint("DistanceY", 3, 1, 3, 2, 65.0),
    Sketcher.Constraint("DistanceX", 0, 2, -1, 1, 230.0),
    Sketcher.Constraint("DistanceY", 0, 2, -1, 1, 185.0),
])
sketch15.setExpression("Constraints[12]", "Params.sketch15_width")
sketch15.setExpression("Constraints[13]", "Params.sketch15_width2")
sketch15.setExpression("Constraints[14]", "Params.sketch15_height")
sketch15.setExpression("Constraints[15]", "Params.sketch15_height2")
pad8 = body.newObject("PartDesign::Pad", "Pad007")
pad8.Profile = sketch15
pad8.Type = "TwoLengths"
pad8.setExpression("Length", "Params.pad8_length")
pad8.setExpression("Length2", "Params.pad8_length2")

# Sketch on XY plane
sketch16 = body.newObject("Sketcher::SketchObject", "Sketch015")
sketch16.AttachmentSupport = (doc.getObject("XY_Plane"), [""])
sketch16.MapMode = "FlatFace"
sketch16.AttachmentOffset = App.Placement(App.Vector(0, 0, -175), App.Rotation())
sketch16.addGeometry([
    Part.LineSegment(App.Vector(-300, 250, 0), App.Vector(-300, -250, 0)),
    Part.LineSegment(App.Vector(-300, -250, 0), App.Vector(300, -250, 0)),
    Part.LineSegment(App.Vector(300, -250, 0), App.Vector(300, 250, 0)),
    Part.LineSegment(App.Vector(300, 250, 0), App.Vector(-300, 250, 0)),
], False)
sketch16.addConstraint([
    Sketcher.Constraint("Coincident", 0, 2, 1, 1),
    Sketcher.Constraint("Coincident", 1, 2, 2, 1),
    Sketcher.Constraint("Coincident", 2, 2, 3, 1),
    Sketcher.Constraint("Coincident", 3, 2, 0, 1),
    Sketcher.Constraint("Vertical", 0),
    Sketcher.Constraint("Horizontal", 1),
    Sketcher.Constraint("Vertical", 2),
    Sketcher.Constraint("Horizontal", 3),
    Sketcher.Constraint("Symmetric", 0, 2, 2, 2, -1, 1),
    Sketcher.Constraint("DistanceX", 1, 1, 1, 2, 600.0),
    Sketcher.Constraint("DistanceY", 0, 2, 0, 1, 500.0),
])
sketch16.setExpression("Constraints[9]", "Params.sketch16_width")
sketch16.setExpression("Constraints[10]", "Params.sketch16_height")
pocket8 = body.newObject("PartDesign::Pocket", "Pocket007")
pocket8.Profile = sketch16
pocket8.setExpression("Length", "Params.pocket8_length")

doc.recompute()
